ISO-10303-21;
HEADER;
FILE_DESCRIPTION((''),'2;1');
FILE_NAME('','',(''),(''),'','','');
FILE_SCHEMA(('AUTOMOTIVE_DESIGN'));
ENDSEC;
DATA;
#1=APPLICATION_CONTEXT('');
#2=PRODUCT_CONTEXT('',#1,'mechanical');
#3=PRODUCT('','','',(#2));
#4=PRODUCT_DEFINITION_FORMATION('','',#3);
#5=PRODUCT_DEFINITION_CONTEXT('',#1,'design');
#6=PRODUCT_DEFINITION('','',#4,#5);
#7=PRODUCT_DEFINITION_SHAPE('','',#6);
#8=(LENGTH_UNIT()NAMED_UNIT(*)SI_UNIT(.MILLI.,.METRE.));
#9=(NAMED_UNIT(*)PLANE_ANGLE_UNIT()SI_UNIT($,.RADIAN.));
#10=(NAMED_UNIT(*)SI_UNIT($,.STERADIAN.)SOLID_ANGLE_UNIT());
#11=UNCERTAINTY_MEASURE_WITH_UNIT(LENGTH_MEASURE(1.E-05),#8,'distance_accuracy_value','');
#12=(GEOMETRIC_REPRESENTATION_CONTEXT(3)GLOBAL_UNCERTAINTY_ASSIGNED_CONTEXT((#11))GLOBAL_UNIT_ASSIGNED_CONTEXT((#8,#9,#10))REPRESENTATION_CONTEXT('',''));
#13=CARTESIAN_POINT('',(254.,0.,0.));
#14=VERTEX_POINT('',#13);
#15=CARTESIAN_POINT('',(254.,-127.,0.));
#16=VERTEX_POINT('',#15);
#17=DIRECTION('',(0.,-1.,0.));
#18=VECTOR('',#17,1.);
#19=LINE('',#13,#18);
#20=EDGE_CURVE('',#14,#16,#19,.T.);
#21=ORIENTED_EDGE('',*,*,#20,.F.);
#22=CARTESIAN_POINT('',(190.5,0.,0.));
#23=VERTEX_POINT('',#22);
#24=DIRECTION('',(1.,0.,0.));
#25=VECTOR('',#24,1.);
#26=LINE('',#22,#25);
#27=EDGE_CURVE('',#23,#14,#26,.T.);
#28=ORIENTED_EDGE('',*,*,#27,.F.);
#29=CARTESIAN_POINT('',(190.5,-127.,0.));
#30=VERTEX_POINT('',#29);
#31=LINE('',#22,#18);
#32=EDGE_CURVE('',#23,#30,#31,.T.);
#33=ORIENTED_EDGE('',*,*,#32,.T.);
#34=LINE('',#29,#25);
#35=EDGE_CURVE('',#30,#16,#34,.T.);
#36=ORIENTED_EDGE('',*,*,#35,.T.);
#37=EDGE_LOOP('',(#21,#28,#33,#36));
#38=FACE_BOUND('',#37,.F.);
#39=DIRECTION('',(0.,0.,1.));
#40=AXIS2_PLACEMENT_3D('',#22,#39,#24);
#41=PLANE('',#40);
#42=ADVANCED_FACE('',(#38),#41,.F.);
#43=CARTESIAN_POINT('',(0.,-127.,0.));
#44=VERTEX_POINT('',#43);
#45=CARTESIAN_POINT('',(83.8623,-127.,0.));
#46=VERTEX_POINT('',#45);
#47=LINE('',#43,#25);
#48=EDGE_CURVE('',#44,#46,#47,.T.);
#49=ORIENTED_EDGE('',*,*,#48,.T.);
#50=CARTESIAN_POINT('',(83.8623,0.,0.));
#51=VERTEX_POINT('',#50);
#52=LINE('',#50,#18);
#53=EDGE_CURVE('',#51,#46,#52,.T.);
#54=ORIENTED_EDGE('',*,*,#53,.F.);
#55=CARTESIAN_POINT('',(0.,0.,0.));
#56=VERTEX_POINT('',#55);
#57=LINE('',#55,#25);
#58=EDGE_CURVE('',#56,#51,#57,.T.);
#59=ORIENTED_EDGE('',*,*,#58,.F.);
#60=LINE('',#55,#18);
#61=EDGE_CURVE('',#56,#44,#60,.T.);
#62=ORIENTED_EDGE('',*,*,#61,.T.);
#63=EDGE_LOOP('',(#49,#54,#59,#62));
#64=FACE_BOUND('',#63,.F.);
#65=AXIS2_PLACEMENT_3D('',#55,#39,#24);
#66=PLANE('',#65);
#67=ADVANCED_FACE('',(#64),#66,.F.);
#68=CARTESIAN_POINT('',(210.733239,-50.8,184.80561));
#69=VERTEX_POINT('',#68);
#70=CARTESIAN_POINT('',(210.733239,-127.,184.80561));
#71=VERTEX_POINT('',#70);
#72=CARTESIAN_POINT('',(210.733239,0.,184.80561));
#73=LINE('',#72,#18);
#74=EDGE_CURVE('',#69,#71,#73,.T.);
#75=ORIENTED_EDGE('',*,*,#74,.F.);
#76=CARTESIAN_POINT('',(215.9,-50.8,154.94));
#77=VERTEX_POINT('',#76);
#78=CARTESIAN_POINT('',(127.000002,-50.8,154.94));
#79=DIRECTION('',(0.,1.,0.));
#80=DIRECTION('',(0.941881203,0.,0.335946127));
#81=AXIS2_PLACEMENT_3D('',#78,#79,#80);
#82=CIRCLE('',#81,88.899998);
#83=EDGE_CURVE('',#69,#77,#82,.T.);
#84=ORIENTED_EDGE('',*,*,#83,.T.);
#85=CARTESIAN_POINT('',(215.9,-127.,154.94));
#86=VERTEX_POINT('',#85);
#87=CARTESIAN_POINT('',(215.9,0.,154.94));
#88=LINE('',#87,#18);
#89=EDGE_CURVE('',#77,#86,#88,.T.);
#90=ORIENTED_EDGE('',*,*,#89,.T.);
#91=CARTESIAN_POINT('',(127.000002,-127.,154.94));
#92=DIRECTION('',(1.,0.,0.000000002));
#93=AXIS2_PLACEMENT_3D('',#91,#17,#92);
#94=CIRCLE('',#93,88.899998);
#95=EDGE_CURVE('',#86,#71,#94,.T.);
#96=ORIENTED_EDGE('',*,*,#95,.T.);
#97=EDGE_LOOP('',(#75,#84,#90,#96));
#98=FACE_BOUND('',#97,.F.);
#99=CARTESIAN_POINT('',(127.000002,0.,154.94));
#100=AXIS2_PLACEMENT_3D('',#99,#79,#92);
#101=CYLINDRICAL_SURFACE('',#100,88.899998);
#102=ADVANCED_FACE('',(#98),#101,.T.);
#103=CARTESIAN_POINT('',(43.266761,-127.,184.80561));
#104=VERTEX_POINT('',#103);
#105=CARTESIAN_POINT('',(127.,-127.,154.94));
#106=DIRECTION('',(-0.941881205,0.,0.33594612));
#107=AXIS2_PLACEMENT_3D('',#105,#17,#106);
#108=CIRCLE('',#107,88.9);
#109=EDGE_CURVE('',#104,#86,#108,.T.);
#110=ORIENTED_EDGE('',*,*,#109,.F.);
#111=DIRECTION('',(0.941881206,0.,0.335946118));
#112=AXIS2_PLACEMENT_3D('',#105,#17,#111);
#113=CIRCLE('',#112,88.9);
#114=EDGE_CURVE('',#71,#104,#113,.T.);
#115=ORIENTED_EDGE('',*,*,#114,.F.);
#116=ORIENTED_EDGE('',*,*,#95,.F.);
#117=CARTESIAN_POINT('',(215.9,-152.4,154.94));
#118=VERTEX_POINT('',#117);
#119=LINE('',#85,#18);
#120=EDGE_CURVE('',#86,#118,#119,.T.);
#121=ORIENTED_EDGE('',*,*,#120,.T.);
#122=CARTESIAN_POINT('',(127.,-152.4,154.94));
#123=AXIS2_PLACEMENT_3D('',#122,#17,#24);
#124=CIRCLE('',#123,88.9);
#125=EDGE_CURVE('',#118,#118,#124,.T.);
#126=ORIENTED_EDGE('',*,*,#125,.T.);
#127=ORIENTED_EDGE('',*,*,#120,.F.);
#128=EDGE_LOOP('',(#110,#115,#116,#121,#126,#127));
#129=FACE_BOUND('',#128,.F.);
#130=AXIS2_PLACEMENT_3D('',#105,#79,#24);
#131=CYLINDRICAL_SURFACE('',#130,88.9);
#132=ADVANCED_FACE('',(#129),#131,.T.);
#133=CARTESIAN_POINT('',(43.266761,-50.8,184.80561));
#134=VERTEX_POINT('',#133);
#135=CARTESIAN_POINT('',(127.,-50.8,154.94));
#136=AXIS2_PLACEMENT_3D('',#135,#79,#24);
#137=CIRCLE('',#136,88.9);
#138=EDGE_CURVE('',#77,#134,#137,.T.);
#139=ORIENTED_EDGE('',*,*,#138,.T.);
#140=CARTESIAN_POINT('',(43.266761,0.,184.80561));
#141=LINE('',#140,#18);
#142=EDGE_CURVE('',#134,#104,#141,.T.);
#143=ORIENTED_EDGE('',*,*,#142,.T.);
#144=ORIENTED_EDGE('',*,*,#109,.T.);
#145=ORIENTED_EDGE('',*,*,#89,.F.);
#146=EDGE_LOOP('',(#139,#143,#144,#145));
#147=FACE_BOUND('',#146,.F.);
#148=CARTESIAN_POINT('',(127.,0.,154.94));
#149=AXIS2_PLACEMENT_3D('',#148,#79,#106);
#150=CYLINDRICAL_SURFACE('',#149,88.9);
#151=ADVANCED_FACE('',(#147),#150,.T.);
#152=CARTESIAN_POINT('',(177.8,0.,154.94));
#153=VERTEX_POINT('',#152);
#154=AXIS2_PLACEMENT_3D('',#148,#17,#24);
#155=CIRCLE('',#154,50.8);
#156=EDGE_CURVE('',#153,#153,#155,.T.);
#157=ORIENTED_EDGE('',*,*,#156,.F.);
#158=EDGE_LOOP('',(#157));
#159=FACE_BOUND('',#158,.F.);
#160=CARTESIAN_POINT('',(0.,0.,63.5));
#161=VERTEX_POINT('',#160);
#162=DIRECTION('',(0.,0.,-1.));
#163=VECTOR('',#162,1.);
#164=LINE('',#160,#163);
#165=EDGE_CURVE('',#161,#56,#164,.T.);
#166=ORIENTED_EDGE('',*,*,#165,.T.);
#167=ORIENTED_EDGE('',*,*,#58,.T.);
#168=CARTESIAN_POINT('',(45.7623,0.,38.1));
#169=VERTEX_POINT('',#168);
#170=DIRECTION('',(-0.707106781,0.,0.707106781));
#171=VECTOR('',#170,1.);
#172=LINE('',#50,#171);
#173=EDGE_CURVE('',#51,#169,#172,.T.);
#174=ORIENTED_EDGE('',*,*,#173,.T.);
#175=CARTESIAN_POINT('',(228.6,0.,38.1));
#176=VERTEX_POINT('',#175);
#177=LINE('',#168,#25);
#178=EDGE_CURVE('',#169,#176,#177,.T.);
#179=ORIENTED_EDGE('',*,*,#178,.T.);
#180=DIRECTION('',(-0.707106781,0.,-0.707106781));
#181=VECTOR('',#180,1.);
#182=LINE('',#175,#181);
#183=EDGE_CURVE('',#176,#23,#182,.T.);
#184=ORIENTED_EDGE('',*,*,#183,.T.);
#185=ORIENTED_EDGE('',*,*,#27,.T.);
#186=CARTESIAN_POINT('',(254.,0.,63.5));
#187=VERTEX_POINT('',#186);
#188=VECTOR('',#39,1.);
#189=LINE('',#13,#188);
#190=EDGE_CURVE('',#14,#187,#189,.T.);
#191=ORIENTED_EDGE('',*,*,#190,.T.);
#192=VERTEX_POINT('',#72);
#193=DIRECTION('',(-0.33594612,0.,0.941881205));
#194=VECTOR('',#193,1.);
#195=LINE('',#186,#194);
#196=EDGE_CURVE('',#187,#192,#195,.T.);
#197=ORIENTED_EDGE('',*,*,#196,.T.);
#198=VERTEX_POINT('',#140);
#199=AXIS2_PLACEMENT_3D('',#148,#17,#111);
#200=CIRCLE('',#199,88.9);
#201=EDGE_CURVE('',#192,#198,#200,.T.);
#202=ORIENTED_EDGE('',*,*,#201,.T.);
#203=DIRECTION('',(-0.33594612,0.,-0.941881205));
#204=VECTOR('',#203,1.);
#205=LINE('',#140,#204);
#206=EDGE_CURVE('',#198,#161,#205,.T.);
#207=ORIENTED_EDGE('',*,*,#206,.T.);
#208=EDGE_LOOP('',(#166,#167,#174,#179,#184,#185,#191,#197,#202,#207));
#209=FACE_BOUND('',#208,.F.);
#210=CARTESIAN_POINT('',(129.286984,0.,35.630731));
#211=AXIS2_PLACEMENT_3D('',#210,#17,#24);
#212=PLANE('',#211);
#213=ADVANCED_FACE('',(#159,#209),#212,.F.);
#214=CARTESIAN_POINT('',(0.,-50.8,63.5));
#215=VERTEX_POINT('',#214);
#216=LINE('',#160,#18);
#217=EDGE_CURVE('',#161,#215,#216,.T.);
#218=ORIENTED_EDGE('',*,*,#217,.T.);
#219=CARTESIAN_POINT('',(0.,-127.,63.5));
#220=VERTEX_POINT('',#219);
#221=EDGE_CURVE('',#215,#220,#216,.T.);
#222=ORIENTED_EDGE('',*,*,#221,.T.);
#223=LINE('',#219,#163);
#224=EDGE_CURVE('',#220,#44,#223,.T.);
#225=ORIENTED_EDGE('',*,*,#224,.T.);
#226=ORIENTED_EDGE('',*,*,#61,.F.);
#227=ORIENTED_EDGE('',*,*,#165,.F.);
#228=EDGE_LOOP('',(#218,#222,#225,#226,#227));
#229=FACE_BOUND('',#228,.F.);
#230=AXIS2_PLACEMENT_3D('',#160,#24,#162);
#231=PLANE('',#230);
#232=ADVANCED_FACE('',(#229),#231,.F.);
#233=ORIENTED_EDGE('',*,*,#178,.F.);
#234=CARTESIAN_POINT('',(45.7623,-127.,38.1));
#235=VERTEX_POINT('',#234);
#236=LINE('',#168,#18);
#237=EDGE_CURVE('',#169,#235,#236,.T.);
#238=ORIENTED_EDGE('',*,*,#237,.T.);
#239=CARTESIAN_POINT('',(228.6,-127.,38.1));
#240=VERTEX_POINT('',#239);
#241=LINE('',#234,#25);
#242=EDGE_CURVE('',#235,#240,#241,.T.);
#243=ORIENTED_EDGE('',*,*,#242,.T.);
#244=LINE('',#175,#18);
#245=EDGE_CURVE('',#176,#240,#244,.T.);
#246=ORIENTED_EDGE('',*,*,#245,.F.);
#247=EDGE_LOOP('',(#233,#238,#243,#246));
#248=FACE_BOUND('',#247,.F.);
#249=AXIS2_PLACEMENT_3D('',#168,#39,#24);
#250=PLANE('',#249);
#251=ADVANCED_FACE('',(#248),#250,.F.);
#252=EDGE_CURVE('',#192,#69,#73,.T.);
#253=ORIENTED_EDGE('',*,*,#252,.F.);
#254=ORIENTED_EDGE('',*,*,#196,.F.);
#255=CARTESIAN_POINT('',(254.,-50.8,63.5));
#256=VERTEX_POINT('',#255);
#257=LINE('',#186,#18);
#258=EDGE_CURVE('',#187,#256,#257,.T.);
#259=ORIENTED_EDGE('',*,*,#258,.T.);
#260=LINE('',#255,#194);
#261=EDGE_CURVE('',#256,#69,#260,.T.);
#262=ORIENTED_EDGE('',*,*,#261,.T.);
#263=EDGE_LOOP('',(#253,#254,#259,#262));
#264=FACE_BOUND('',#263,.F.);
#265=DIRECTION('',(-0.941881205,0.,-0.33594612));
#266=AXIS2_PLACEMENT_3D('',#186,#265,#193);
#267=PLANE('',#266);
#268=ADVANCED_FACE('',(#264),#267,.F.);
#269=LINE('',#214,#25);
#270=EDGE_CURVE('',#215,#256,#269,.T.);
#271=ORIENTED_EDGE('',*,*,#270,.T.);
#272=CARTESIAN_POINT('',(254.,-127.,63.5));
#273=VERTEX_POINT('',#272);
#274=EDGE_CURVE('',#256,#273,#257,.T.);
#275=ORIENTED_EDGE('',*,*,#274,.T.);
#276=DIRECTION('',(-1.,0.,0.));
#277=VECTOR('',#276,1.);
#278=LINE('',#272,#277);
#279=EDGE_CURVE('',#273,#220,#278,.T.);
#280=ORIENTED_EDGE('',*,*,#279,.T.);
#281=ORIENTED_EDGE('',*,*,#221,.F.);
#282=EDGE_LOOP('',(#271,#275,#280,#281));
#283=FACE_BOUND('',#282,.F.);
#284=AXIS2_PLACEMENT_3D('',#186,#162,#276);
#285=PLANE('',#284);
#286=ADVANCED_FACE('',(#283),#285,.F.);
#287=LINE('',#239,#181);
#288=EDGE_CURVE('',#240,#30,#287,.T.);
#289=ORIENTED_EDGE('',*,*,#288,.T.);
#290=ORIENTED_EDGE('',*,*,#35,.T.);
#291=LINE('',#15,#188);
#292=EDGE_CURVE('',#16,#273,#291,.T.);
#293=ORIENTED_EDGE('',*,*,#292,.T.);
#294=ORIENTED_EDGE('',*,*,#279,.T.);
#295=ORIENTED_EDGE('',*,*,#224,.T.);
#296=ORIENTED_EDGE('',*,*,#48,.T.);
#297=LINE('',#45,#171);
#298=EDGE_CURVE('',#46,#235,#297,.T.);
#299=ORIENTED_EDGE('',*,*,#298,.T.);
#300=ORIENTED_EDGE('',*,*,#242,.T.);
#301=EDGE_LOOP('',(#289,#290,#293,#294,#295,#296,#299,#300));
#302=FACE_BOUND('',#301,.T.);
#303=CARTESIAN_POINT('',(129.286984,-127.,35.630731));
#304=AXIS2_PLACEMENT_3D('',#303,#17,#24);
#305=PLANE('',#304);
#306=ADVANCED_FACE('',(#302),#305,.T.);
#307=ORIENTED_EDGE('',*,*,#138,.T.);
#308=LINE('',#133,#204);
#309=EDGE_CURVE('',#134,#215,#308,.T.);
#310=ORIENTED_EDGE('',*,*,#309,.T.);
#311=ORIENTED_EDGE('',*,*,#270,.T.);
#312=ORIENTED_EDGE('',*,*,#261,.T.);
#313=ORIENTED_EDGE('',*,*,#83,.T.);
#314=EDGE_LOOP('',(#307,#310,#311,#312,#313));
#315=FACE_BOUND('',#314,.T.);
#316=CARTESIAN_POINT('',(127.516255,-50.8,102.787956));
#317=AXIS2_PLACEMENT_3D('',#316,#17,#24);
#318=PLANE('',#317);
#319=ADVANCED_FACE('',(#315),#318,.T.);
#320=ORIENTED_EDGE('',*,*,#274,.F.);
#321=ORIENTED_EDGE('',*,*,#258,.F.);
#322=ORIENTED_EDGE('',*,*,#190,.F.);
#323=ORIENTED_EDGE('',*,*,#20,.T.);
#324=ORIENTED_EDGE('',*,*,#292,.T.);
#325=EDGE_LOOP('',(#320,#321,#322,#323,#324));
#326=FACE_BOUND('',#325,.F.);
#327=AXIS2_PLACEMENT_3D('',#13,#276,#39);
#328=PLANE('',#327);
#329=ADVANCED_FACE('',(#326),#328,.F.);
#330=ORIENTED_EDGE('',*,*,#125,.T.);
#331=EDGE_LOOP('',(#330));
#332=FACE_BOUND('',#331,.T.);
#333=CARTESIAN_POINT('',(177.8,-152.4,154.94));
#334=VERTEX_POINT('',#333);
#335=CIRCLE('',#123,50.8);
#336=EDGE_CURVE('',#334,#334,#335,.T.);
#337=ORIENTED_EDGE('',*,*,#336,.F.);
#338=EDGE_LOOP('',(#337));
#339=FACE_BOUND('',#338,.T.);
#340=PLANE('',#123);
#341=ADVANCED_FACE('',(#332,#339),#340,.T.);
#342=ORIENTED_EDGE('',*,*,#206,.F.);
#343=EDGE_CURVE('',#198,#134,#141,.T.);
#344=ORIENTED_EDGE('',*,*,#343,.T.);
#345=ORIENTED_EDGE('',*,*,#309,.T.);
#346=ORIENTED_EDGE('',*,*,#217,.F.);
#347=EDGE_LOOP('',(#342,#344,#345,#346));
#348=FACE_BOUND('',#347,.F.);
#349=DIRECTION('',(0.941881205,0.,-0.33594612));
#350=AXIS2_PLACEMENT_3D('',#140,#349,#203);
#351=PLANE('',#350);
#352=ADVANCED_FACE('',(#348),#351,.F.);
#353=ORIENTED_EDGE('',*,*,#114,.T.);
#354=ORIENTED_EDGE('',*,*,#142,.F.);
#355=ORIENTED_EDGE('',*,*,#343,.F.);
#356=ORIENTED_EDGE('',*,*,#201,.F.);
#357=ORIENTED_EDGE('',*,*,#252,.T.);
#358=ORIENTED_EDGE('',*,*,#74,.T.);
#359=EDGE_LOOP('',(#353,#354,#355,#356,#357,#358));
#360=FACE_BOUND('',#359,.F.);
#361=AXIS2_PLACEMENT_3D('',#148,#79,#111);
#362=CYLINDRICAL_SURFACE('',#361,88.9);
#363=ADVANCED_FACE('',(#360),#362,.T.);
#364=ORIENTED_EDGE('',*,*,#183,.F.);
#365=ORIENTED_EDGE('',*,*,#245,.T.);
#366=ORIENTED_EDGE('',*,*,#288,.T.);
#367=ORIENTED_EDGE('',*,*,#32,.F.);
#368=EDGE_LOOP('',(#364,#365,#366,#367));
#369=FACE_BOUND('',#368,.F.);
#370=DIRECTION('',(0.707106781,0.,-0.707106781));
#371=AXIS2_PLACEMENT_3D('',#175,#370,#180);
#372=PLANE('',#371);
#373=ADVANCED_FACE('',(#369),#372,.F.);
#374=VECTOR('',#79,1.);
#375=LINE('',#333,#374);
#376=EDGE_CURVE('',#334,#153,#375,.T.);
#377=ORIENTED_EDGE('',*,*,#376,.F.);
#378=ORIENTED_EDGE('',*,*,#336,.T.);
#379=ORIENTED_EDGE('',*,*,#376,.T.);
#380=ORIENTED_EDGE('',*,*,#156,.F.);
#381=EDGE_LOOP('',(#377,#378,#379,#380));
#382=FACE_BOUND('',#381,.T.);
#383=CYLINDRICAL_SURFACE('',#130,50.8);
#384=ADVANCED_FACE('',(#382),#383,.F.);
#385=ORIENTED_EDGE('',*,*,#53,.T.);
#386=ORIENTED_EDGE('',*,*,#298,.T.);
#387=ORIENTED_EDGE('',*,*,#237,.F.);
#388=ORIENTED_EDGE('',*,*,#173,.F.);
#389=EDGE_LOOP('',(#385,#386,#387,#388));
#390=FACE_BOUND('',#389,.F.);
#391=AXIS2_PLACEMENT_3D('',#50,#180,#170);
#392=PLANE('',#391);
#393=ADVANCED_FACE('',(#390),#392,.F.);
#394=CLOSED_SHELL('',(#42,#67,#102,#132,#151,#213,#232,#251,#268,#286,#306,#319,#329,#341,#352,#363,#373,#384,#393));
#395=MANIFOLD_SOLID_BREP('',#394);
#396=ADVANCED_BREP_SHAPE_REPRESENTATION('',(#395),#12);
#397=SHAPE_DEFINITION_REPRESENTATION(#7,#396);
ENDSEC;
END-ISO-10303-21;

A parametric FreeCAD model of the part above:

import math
import FreeCAD as App
import Part
import Sketcher
from FreeCAD import Vector
Q = App.Units.Quantity


def add_polygon(sketch, points):
    """Adds a closed chain of lines whose ends are joined by coincident constraints."""
    first, n = sketch.GeometryCount, len(points)
    for a, b in zip(points, points[1:] + points[:1]):
        sketch.addGeometry(Part.LineSegment(App.Vector(*a, 0), App.Vector(*b, 0)), False)
    for i in range(n):
        sketch.addConstraint(Sketcher.Constraint("Coincident", first + i, 2, first + (i + 1) % n, 1))

doc = App.newDocument("Part")
body = doc.addObject("PartDesign::Body", "Body")

sketch1 = body.newObject("Sketcher::SketchObject", "Sketch")
sketch1.AttachmentSupport = (doc.getObject("XZ_Plane"), [""])
sketch1.MapMode = "FlatFace"
sketch1.addGeometry([
    Part.ArcOfCircle(Part.Circle(Vector(127, 155, 0), Vector(0, 0, 1), 89), math.radians(20), math.radians(160)),
    Part.ArcOfCircle(Part.Circle(Vector(127, 155, 0), Vector(0, 0, 1), 89), math.radians(160), math.radians(360)),
    Part.ArcOfCircle(Part.Circle(Vector(127, 155, 0), Vector(0, 0, 1), 89), math.radians(0), math.radians(19.63)),
    Part.Circle(Vector(127, 155, 0), Vector(0, 0, 1), 51),
], False)
sketch1.addConstraint([
    Sketcher.Constraint("Tangent", 0, 2, 1, 1),
    Sketcher.Constraint("Tangent", 1, 2, 2, 1),
    Sketcher.Constraint("Tangent", 2, 2, 0, 1),
    Sketcher.Constraint("Coincident", 3, 3, 0, 3),
    Sketcher.Constraint("Horizontal", 3, 3, 1, 2),
    Sketcher.Constraint("Horizontal", 0, 2, 2, 2),
    Sketcher.Constraint("Diameter", 3, Q("4 in")),
    Sketcher.Constraint("Radius", 0, Q("3.5 in")),
    Sketcher.Constraint("DistanceX", -1, 1, 0, 3, Q("5 in")),
    Sketcher.Constraint("DistanceY", -1, 1, 0, 3, Q("6.1 in")),
    Sketcher.Constraint("DistanceX", -1, 1, 0, 2, Q("43.266761 mm")),
])
pad1 = body.newObject("PartDesign::Pad", "Pad")
pad1.Profile = sketch1
pad1.Length = Q("5 in")

sketch2 = body.newObject("Sketcher::SketchObject", "Sketch001")
sketch2.AttachmentSupport = (doc.getObject("XZ_Plane"), [""])
sketch2.MapMode = "FlatFace"
sketch2.AttachmentOffset = App.Placement(Vector(0, 0, 5 * 25.4), App.Rotation())
sketch2.addGeometry([
    Part.Circle(Vector(127, 155, 0), Vector(0, 0, 1), 89),
    Part.Circle(Vector(127, 155, 0), Vector(0, 0, 1), 51),
], False)
sketch2.addConstraint([
    Sketcher.Constraint("Coincident", 1, 3, 0, 3),
    Sketcher.Constraint("Diameter", 0, Q("7 in")),
    Sketcher.Constraint("Diameter", 1, Q("4 in")),
    Sketcher.Constraint("DistanceX", -1, 1, 0, 3, Q("5 in")),
    Sketcher.Constraint("DistanceY", -1, 1, 0, 3, Q("6.1 in")),
])
pad2 = body.newObject("PartDesign::Pad", "Pad001")
pad2.Profile = sketch2
pad2.Length = Q("1 in")

sketch3 = body.newObject("Sketcher::SketchObject", "Sketch002")
sketch3.AttachmentSupport = (doc.getObject("XZ_Plane"), [""])
sketch3.MapMode = "FlatFace"
sketch3.addGeometry([
    Part.LineSegment(Vector(43, 185, 0), Vector(0, 64, 0)),
    Part.LineSegment(Vector(0, 64, 0), Vector(254, 64, 0)),
    Part.LineSegment(Vector(254, 64, 0), Vector(211, 185, 0)),
    Part.ArcOfCircle(Part.Circle(Vector(127, 155, 0), Vector(0, 0, 1), 89), math.radians(0), math.radians(19.63)),
    Part.ArcOfCircle(Part.Circle(Vector(127, 155, 0), Vector(0, 0, 1), 89), math.radians(160), math.radians(360)),
], False)
sketch3.addConstraint([
    Sketcher.Constraint("Coincident", 0, 2, 1, 1),
    Sketcher.Constraint("Coincident", 1, 2, 2, 1),
    Sketcher.Constraint("Tangent", 2, 2, 3, 2),
    Sketcher.Constraint("Tangent", 3, 1, 4, 2),
    Sketcher.Constraint("Tangent", 4, 1, 0, 1),
    Sketcher.Constraint("Horizontal", 1),
    Sketcher.Constraint("Equal", 3, 4),
    Sketcher.Constraint("PointOnObject", 0, 2, -2),
    Sketcher.Constraint("Horizontal", 4, 3, 3, 1),
    Sketcher.Constraint("Horizontal", 2, 2, 4, 1),
    Sketcher.Constraint("Radius", 3, Q("3.4999999 in")),
    Sketcher.Constraint("DistanceX", 1, 1, 1, 2, Q("10 in")),
    Sketcher.Constraint("DistanceY", -1, 1, 3, 3, Q("6.1 in")),
    Sketcher.Constraint("DistanceY", -1, 1, 0, 2, Q("2.5 in")),
])
pad3 = body.newObject("PartDesign::Pad", "Pad002")
pad3.Profile = sketch3
pad3.Length = Q("2 in")

sketch4 = body.newObject("Sketcher::SketchObject", "Sketch003")
sketch4.AttachmentSupport = (doc.getObject("XZ_Plane"), [""])
sketch4.MapMode = "FlatFace"
add_polygon(sketch4, [(0, 64), (0, 0), (84, 0), (46, 38), (229, 38), (190, 0), (254, 0), (254, 64)])
sketch4.addConstraint([
    Sketcher.Constraint("Vertical", 0),
    Sketcher.Constraint("Horizontal", 1),
    Sketcher.Constraint("Horizontal", 3),
    Sketcher.Constraint("Horizontal", 5),
    Sketcher.Constraint("Vertical", 6),
    Sketcher.Constraint("Horizontal", 7),
    Sketcher.Constraint("Coincident", 0, 2, -1, 1),
    Sketcher.Constraint("PointOnObject", 4, 2, -1),
    Sketcher.Constraint("Perpendicular", 2, 4),
    Sketcher.Constraint("Equal", 5, 0),
    Sketcher.Constraint("Equal", 2, 4),
    Sketcher.Constraint("DistanceX", 7, 2, 7, 1, Q("10 in")),
    Sketcher.Constraint("DistanceX", 5, 1, 5, 2, Q("2.5 in")),
    Sketcher.Constraint("DistanceX", -1, 1, 3, 2, Q("9 in")),
    Sketcher.Constraint("DistanceX", 1, 1, 1, 2, Q("83.8623 mm")),
])
pad4 = body.newObject("PartDesign::Pad", "Pad003")
pad4.Profile = sketch4
pad4.Length = Q("5 in")

doc.recompute()
